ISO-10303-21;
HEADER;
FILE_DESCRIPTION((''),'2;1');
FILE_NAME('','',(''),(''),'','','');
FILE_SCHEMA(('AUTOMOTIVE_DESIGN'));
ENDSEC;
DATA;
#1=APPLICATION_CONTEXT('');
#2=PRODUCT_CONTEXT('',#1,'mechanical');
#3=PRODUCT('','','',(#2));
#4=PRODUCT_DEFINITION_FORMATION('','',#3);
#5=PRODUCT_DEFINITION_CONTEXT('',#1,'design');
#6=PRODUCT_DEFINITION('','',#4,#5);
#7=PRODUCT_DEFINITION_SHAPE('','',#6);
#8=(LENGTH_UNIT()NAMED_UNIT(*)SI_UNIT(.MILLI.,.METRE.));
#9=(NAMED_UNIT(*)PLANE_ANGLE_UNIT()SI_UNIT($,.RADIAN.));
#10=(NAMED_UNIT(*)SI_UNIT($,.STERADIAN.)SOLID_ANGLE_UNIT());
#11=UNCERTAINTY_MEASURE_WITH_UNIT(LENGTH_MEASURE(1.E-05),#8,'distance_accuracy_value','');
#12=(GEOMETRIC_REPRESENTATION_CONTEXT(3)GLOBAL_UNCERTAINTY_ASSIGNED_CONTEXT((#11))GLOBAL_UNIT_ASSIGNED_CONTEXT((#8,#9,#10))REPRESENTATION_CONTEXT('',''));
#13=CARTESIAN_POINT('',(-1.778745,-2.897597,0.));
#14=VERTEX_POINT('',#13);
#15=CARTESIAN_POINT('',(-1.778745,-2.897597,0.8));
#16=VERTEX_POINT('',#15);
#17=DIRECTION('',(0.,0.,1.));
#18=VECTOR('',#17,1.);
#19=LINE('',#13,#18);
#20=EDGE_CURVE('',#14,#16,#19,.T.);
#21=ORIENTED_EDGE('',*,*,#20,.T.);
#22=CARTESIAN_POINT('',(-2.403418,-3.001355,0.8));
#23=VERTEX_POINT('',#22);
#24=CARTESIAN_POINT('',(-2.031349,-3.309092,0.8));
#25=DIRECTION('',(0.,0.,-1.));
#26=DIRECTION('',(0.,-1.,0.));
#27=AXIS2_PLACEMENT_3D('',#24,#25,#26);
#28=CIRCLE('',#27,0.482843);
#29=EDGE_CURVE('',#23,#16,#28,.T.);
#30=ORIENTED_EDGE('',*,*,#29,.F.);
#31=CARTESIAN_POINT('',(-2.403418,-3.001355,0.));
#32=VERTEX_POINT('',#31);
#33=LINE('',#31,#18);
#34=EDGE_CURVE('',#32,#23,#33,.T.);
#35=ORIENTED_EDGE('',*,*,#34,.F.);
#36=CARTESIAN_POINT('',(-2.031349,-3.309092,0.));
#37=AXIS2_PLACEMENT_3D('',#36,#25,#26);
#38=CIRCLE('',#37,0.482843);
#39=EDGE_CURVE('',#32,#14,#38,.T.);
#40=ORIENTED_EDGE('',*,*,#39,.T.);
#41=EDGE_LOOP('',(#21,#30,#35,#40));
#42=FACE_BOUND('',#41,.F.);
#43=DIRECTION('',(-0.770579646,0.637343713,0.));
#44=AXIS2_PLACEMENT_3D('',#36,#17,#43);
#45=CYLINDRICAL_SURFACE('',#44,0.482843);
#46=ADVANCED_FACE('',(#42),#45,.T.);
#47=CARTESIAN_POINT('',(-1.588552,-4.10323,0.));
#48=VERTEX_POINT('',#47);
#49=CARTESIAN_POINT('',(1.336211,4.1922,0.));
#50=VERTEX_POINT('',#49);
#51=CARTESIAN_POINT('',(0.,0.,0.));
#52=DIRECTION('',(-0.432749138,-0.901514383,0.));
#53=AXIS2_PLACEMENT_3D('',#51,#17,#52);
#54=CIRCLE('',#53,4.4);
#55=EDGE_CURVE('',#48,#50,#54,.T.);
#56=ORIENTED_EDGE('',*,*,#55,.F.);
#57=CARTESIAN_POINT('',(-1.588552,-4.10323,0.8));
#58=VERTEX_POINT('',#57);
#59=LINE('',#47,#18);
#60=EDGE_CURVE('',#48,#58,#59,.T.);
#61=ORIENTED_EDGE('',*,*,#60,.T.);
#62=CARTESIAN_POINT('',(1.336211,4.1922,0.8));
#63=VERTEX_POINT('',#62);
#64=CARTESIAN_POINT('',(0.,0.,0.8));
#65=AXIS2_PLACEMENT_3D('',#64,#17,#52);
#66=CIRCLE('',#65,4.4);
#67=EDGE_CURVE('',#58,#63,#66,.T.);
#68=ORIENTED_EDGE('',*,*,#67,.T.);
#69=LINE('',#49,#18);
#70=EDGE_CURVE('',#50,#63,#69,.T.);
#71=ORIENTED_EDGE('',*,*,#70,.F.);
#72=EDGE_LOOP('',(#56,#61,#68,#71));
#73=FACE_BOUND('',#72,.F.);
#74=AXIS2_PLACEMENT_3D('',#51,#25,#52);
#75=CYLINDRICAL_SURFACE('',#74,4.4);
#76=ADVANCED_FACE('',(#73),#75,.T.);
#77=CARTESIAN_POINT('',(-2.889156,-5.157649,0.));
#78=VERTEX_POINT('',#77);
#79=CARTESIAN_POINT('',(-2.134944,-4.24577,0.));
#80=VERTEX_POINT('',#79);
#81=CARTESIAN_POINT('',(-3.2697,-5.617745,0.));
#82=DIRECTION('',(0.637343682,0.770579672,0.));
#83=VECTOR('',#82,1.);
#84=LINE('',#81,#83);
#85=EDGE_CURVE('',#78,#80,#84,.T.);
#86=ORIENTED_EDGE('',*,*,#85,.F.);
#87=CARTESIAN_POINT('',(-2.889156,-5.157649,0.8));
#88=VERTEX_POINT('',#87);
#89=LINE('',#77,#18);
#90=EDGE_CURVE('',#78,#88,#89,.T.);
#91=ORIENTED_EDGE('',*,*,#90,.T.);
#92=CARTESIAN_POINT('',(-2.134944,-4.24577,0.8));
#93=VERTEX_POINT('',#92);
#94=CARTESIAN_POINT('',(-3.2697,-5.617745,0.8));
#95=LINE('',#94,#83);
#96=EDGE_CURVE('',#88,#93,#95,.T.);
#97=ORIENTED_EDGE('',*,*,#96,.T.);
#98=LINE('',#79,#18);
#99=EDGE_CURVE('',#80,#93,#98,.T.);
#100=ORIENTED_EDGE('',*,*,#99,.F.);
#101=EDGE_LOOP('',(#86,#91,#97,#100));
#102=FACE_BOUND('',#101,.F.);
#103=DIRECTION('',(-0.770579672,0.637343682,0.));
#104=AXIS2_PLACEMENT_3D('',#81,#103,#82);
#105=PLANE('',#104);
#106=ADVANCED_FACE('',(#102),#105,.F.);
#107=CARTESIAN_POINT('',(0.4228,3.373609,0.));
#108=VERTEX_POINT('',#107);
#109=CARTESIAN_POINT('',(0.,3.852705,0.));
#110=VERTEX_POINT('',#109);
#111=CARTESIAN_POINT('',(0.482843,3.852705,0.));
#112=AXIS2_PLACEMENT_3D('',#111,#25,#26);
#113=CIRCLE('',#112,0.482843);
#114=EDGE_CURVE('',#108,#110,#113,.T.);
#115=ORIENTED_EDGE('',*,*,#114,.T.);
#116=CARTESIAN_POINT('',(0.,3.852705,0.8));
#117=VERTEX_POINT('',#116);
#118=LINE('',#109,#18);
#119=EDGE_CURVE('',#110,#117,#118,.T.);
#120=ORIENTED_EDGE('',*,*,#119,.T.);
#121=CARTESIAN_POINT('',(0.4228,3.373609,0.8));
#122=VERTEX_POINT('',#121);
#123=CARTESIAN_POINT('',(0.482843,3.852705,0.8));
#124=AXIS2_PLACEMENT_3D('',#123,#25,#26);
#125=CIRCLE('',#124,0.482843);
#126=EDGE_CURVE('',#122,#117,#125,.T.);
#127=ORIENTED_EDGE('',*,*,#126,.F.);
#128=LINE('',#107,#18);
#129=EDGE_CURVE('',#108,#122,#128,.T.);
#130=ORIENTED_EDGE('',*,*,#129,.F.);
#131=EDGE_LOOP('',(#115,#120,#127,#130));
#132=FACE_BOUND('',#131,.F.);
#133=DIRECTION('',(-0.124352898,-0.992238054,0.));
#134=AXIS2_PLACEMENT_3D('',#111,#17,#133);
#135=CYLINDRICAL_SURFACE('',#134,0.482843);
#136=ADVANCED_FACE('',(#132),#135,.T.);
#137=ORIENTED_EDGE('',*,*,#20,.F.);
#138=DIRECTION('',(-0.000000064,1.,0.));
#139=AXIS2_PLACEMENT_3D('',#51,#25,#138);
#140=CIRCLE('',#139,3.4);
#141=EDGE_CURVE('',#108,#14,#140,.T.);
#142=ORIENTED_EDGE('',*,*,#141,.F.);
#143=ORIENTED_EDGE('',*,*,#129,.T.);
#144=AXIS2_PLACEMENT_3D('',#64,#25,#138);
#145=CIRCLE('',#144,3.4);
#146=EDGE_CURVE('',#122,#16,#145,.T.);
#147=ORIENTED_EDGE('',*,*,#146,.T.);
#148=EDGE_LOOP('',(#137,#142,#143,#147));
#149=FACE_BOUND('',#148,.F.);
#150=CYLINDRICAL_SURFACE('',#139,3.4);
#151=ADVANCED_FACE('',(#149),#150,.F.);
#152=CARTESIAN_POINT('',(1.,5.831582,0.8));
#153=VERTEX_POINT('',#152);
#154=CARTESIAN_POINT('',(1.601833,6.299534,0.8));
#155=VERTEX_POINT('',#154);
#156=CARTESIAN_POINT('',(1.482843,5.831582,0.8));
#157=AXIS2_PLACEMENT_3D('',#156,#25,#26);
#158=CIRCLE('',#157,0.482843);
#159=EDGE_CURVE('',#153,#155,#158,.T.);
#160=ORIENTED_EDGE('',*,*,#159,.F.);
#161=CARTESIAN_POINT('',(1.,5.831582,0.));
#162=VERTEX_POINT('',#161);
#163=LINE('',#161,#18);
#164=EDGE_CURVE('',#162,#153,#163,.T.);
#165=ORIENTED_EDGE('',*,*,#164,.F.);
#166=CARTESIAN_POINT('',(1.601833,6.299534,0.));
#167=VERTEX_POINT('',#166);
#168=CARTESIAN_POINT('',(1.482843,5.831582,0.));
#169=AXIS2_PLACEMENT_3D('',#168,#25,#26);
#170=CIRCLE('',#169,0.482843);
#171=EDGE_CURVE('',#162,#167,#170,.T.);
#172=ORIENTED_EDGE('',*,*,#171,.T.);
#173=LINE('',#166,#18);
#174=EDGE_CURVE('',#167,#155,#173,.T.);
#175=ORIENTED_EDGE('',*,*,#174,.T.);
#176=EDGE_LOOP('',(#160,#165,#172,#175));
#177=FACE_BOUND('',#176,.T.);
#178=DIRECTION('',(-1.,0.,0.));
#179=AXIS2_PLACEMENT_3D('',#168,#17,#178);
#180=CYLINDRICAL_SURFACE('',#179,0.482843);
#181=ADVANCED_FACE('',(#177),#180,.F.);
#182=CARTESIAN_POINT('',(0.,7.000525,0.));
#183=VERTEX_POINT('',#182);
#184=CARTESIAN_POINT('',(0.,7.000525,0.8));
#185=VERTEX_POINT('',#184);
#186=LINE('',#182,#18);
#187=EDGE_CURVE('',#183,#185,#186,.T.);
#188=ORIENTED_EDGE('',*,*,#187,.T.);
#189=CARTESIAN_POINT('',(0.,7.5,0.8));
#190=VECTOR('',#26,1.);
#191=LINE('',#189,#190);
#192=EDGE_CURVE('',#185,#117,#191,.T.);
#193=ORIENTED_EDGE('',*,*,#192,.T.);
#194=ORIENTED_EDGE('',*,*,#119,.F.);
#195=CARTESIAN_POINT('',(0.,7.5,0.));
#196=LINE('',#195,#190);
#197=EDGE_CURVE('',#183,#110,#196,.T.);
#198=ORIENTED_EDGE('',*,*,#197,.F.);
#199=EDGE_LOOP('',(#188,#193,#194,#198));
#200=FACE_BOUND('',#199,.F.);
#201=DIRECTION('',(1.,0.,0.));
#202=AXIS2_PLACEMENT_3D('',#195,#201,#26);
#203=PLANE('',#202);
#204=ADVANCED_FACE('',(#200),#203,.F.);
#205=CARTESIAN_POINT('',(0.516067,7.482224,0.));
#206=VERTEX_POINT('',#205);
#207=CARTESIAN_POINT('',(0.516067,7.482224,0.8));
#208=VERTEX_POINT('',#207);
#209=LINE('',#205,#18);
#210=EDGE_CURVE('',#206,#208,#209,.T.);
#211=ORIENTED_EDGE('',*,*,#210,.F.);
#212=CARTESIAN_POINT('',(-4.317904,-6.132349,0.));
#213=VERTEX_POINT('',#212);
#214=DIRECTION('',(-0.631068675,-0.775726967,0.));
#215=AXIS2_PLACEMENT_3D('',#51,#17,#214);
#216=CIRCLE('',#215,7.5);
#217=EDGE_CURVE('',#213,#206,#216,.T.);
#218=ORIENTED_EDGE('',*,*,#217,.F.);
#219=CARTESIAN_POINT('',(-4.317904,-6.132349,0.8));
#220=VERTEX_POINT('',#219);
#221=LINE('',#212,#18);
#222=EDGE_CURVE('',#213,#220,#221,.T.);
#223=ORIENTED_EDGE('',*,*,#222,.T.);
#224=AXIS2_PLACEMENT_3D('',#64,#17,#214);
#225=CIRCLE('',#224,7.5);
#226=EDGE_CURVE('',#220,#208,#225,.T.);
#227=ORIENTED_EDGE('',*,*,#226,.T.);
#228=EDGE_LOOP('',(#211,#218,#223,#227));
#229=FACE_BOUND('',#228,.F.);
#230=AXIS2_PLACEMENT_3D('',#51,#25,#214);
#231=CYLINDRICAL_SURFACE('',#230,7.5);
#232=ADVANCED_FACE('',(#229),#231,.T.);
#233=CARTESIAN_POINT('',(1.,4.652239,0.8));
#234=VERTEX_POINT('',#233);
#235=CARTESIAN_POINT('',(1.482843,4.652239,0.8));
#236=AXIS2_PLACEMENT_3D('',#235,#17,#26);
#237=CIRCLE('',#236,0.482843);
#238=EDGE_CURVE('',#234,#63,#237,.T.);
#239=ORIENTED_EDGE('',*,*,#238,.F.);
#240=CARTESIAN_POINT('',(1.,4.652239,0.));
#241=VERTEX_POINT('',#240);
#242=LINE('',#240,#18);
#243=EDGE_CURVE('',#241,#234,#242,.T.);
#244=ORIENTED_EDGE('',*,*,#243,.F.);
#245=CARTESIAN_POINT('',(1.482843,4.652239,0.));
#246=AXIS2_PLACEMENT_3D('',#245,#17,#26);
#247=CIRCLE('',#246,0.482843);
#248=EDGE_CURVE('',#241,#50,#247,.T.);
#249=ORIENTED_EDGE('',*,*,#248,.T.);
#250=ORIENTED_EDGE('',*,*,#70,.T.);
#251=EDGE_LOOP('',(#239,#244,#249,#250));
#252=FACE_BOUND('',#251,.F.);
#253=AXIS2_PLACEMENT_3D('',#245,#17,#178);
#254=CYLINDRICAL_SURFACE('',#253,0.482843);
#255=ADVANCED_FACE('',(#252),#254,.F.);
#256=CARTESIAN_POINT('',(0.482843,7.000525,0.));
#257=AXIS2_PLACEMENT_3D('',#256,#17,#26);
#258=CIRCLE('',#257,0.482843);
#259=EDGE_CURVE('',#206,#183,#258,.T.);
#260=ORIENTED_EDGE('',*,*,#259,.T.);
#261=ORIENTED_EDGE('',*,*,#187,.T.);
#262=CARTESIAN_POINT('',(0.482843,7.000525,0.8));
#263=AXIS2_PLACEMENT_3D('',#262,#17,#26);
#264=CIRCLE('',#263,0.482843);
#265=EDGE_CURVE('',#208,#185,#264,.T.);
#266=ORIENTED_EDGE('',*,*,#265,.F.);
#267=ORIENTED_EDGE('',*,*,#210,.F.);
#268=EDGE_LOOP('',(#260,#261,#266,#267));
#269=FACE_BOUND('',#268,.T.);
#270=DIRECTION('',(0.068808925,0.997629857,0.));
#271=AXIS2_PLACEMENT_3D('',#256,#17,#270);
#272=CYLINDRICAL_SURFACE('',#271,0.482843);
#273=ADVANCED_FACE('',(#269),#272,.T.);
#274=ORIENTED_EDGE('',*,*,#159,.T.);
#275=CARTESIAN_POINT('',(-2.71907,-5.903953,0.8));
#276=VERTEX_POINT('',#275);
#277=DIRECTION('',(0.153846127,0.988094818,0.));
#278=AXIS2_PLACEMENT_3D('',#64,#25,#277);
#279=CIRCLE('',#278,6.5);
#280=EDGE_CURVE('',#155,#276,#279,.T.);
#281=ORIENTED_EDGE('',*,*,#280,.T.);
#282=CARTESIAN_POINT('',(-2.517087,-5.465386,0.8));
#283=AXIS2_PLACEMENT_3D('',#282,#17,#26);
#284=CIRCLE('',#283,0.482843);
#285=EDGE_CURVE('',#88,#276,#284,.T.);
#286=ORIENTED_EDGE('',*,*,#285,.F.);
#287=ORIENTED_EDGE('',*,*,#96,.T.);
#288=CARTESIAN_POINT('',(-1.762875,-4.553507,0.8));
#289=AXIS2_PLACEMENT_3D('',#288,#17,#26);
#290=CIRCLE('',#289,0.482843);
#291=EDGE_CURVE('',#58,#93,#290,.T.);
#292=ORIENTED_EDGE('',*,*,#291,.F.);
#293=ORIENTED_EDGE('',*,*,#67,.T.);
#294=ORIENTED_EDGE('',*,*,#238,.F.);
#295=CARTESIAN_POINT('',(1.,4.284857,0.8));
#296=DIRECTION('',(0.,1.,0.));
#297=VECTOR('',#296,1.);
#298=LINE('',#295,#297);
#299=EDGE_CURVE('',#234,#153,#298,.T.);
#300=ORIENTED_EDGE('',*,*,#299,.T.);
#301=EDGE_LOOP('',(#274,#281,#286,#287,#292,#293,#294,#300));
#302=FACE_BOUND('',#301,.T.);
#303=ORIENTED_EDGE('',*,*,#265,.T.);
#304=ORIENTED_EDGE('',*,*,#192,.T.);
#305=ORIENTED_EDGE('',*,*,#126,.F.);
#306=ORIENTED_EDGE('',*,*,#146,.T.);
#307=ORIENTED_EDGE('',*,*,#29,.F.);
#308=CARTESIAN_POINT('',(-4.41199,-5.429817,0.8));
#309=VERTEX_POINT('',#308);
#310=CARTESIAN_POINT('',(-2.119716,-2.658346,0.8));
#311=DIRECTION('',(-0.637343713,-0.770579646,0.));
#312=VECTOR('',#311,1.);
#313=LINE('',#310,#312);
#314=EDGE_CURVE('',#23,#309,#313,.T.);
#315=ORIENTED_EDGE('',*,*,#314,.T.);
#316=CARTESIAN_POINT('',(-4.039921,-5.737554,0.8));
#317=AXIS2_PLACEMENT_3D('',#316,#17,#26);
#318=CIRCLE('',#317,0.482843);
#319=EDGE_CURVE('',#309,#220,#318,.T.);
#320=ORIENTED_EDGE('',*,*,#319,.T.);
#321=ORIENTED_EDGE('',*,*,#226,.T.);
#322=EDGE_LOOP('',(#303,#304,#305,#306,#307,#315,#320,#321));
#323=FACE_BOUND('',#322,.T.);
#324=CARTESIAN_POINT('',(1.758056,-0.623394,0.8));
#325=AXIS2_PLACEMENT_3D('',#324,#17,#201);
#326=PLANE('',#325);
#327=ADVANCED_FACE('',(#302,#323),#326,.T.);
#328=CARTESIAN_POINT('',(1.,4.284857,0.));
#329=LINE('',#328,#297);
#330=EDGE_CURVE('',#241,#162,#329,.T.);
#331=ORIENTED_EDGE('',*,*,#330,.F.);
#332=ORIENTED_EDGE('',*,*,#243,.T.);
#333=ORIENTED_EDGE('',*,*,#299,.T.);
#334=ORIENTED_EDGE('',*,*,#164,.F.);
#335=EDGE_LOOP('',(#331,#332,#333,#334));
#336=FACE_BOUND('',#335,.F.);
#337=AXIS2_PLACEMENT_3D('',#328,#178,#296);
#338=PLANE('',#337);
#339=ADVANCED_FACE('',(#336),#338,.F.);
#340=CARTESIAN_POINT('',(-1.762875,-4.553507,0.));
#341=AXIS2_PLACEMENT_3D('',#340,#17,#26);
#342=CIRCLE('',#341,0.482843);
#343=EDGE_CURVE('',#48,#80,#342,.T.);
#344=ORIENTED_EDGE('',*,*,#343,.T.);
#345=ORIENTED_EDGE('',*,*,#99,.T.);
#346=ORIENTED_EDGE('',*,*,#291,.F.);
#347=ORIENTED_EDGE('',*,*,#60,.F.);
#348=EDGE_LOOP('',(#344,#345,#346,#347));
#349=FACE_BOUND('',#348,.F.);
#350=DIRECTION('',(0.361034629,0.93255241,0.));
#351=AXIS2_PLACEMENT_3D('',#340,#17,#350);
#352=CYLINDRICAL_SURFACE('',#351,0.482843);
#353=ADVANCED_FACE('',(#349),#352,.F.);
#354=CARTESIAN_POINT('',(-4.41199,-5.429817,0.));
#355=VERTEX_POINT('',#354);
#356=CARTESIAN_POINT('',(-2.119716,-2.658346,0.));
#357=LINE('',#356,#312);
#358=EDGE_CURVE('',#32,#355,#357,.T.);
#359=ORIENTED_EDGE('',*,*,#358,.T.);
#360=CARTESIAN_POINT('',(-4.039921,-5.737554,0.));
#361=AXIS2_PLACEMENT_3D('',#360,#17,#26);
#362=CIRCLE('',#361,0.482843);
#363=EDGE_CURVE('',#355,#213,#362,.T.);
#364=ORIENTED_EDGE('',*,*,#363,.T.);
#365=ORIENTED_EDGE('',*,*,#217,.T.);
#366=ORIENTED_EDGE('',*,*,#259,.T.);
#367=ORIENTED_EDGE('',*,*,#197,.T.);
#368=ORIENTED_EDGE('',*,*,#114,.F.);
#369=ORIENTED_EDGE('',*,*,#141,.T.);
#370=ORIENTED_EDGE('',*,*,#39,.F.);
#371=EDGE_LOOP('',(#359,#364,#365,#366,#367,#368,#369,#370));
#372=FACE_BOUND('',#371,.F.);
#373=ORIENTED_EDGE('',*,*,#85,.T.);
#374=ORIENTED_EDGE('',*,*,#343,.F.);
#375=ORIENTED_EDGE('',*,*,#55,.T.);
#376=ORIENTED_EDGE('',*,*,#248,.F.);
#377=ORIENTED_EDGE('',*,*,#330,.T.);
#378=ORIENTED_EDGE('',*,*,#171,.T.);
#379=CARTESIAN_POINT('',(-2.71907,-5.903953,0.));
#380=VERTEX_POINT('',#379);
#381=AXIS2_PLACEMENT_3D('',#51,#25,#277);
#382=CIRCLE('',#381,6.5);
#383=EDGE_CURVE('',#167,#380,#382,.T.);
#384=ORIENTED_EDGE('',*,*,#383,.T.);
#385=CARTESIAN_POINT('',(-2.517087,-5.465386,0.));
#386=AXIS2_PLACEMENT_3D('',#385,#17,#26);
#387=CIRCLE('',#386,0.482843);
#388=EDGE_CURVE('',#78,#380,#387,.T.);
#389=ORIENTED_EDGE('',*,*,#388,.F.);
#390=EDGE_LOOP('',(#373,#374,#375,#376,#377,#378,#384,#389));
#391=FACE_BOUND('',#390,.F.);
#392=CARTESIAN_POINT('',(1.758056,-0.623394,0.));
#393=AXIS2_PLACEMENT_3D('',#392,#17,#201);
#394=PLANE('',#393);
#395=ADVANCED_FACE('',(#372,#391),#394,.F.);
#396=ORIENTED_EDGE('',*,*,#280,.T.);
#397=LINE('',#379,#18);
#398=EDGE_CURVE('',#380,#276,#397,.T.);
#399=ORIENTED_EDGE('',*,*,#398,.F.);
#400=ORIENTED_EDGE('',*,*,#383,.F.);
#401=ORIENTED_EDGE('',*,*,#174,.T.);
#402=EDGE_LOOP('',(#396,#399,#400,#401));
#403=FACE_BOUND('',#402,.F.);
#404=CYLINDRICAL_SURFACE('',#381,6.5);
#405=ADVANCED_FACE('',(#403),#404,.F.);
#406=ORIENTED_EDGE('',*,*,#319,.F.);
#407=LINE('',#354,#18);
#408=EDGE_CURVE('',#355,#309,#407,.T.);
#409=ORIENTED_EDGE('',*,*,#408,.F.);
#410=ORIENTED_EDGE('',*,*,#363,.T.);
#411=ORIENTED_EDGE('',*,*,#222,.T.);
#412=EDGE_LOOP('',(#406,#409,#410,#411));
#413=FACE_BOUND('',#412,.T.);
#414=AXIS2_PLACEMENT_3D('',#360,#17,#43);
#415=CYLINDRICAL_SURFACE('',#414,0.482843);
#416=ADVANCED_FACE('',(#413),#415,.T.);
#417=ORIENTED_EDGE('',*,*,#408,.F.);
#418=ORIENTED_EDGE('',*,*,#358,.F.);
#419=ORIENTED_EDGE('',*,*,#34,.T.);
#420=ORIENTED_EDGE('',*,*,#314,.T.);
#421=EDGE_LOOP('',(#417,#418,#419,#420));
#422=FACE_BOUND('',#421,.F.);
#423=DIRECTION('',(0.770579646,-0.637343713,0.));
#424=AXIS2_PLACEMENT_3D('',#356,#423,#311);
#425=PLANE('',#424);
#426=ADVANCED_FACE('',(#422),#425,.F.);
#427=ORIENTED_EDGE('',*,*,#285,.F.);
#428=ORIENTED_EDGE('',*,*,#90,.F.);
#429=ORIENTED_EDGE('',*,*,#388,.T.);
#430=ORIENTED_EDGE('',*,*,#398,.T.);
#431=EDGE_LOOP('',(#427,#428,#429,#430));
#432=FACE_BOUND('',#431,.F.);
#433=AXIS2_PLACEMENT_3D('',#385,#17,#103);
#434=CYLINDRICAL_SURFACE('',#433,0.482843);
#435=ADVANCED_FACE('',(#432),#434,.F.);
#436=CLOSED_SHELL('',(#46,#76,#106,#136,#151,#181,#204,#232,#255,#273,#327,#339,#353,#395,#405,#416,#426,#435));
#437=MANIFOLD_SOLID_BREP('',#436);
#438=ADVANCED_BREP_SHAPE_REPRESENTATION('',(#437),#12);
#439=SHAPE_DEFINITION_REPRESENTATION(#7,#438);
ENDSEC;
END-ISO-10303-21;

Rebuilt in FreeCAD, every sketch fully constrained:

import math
import FreeCAD as App
import Part
import Sketcher
Q = App.Units.Quantity


def edges_at(feature, points):
    """Names of the edges that pass closest to the given points."""
    edges = feature.Shape.Edges
    near = lambda p: min(range(len(edges)), key=lambda i: edges[i].distToShape(Part.Vertex(*p))[0])
    return sorted({f"Edge{near(p) + 1}" for p in points})

doc = App.newDocument("Part")
body = doc.addObject("PartDesign::Body", "Body")

# Sketch on XY plane
sketch1 = body.newObject("Sketcher::SketchObject", "Sketch")
sketch1.AttachmentSupport = (doc.getObject("XY_Plane"), [""])
sketch1.MapMode = "FlatFace"
sketch1.addGeometry([
    Part.LineSegment(App.Vector(-2.1, -2.7, 0), App.Vector(-4.7, -5.8, 0)),  # 0
    Part.ArcOfCircle(Part.Circle(App.Vector(0, 0, 0), App.Vector(0, 0, 1), 7.5), math.radians(-129), math.radians(90)),  # 1
    Part.LineSegment(App.Vector(0, 7.5, 0), App.Vector(0, 3.4, 0)),  # 2
    Part.ArcOfCircle(Part.Circle(App.Vector(0, 0, 0), App.Vector(0, 0, 1), 3.4), math.radians(-129), math.radians(90)),  # 3
    Part.LineSegment(App.Vector(1, 4.3, 0), App.Vector(1, 6.4, 0)),  # 4
    Part.ArcOfCircle(Part.Circle(App.Vector(0, 0, 0), App.Vector(0, 0, 1), 6.5), math.radians(-120), math.radians(81)),  # 5
    Part.LineSegment(App.Vector(-3.3, -5.6, 0), App.Vector(-1.9, -4, 0)),  # 6
    Part.ArcOfCircle(Part.Circle(App.Vector(0, 0, 0), App.Vector(0, 0, 1), 4.4), math.radians(-116), math.radians(77)),  # 7
], False)
sketch1.addConstraint([
    Sketcher.Constraint("Coincident", 0, 2, 1, 1),
    Sketcher.Constraint("Coincident", 1, 2, 2, 1),
    Sketcher.Constraint("Coincident", 2, 2, 3, 2),
    Sketcher.Constraint("Coincident", 3, 1, 0, 1),
    Sketcher.Constraint("Coincident", 4, 2, 5, 2),
    Sketcher.Constraint("Coincident", 5, 1, 6, 1),
    Sketcher.Constraint("Coincident", 6, 2, 7, 1),
    Sketcher.Constraint("Coincident", 7, 2, 4, 1),
    Sketcher.Constraint("Vertical", 2),
    Sketcher.Constraint("Vertical", 4),
    Sketcher.Constraint("Coincident", 1, 3, -1, 1),
    Sketcher.Constraint("Coincident", 3, 3, -1, 1),
    Sketcher.Constraint("Coincident", 5, 3, -1, 1),
    Sketcher.Constraint("Coincident", 7, 3, -1, 1),
    Sketcher.Constraint("PointOnObject", 1, 2, -2),
    Sketcher.Constraint("Parallel", 0, 6),
    Sketcher.Constraint("Radius", 1, Q("7.5 mm")),
    Sketcher.Constraint("Radius", 3, Q("3.4 mm")),
    Sketcher.Constraint("Radius", 5, Q("6.5 mm")),
    Sketcher.Constraint("Radius", 7, Q("4.4 mm")),
    Sketcher.Constraint("DistanceX", -1, 1, 4, 2, Q("1 mm")),
    Sketcher.Constraint("DistanceX", 5, 1, -1, 1, Q("3.2697 mm")),
    Sketcher.Constraint("DistanceX", 0, 2, 3, 1, Q("2.613299 mm")),
    Sketcher.Constraint("DistanceY", 5, 1, 3, 1, Q("2.959399 mm")),
])
pad1 = body.newObject("PartDesign::Pad", "Pad")
pad1.Profile = sketch1
pad1.Length = 0.8
doc.recompute()

fillet = body.newObject("PartDesign::Fillet", "Fillet")
fillet.Base = (pad1, edges_at(pad1, [
    (-3.27, -5.618, 0.4),
    (-1.904, -3.967, 0.4),
    (1, 4.285, 0.4),
    (1, 6.423, 0.4),
    (0, 3.4, 0.4),
    (-2.12, -2.658, 0.4),
    (-4.733, -5.818, 0.4),
    (0, 7.5, 0.4),
]))
fillet.Radius = 0.482843

doc.recompute()
